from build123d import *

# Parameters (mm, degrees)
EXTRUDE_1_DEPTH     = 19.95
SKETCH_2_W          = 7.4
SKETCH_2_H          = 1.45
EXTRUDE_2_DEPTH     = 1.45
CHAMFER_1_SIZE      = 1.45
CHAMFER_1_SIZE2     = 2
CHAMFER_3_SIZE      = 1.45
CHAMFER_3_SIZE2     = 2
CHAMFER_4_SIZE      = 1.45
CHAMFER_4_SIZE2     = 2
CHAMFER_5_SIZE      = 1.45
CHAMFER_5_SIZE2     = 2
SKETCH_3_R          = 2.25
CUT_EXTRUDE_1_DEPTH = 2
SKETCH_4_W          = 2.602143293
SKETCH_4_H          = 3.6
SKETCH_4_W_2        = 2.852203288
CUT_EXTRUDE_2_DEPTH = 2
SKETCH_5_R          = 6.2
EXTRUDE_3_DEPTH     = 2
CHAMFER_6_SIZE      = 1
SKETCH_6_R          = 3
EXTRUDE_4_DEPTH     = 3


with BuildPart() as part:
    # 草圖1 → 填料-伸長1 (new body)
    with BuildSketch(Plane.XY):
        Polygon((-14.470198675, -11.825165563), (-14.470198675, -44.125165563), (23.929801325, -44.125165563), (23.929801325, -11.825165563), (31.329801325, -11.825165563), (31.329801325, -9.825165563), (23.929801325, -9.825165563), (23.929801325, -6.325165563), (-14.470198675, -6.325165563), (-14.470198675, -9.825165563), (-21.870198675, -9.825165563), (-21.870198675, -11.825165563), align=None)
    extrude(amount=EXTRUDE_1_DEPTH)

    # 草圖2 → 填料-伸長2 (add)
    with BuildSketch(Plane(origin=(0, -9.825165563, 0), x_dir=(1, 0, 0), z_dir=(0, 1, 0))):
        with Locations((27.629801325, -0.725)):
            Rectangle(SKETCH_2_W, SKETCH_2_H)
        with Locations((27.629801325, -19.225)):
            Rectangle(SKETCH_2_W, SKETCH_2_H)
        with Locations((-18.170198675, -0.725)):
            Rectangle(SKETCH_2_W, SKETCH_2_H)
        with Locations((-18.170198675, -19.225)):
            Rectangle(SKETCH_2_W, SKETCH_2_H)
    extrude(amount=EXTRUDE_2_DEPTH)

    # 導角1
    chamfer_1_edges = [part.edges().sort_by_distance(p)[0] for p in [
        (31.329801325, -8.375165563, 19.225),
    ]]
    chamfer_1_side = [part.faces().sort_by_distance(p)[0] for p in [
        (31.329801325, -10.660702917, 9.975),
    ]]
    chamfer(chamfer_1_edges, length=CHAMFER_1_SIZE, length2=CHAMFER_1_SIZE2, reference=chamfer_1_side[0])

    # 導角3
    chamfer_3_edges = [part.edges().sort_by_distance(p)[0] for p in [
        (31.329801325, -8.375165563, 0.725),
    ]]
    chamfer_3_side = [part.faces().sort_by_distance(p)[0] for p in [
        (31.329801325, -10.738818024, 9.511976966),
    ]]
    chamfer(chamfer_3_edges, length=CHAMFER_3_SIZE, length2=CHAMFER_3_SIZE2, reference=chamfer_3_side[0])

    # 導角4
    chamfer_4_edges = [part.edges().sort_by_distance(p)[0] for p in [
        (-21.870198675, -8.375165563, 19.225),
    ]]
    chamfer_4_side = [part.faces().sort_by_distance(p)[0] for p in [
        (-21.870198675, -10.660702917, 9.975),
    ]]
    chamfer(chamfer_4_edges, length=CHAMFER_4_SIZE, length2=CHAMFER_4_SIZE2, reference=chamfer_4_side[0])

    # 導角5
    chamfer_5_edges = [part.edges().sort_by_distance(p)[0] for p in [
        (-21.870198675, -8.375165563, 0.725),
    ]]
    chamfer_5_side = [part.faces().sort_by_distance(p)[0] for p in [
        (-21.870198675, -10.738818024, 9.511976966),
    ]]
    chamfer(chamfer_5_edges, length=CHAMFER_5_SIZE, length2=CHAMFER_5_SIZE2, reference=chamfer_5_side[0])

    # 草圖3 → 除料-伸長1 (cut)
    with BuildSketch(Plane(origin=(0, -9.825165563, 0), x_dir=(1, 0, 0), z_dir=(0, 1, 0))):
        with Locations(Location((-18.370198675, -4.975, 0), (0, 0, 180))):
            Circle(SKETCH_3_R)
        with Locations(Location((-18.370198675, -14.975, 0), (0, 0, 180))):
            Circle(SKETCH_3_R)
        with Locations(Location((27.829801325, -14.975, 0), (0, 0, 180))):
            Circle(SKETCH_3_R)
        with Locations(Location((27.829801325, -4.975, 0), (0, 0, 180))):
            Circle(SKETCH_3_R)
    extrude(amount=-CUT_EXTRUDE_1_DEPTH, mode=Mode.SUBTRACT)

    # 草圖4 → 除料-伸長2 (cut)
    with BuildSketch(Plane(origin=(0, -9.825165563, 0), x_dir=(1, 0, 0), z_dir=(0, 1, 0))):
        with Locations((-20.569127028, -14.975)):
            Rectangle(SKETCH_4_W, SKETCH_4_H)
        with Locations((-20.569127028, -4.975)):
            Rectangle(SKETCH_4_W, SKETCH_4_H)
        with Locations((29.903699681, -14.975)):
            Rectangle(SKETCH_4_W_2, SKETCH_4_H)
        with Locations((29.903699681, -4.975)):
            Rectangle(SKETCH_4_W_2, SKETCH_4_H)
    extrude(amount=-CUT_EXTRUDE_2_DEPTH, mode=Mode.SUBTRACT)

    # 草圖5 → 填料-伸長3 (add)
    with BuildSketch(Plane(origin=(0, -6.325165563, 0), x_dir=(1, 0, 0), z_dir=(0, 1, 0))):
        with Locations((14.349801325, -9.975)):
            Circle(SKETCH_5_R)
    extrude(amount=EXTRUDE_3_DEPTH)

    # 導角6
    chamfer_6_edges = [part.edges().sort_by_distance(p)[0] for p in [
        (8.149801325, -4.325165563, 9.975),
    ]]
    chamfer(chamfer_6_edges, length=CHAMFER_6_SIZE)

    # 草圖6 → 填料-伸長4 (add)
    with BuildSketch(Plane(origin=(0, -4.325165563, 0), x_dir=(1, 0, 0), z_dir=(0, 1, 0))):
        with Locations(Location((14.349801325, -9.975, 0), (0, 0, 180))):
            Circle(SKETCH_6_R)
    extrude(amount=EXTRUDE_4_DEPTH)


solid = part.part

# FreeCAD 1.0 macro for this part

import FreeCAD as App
import Part
import Sketcher
Q = App.Units.Quantity


def edges_at(feature, points):
    """Names of the edges that pass closest to the given points."""
    edges = feature.Shape.Edges
    near = lambda p: min(range(len(edges)), key=lambda i: edges[i].distToShape(Part.Vertex(*p))[0])
    return sorted({f"Edge{near(p) + 1}" for p in points})

doc = App.newDocument("Part")
body = doc.addObject("PartDesign::Body", "Body")

# Sketch on XY plane
sketch1 = body.newObject("Sketcher::SketchObject", "Sketch")
sketch1.AttachmentSupport = (doc.getObject("XY_Plane"), [""])
sketch1.MapMode = "FlatFace"
sketch1.addGeometry([
    Part.LineSegment(App.Vector(-14.470199, -11.825166, 0), App.Vector(-14.470199, -44.125166, 0)),  # 0
    Part.LineSegment(App.Vector(-14.470199, -44.125166, 0), App.Vector(23.929801, -44.125166, 0)),  # 1
    Part.LineSegment(App.Vector(23.929801, -44.125166, 0), App.Vector(23.929801, -11.825166, 0)),  # 2
    Part.LineSegment(App.Vector(23.929801, -11.825166, 0), App.Vector(31.329801, -11.825166, 0)),  # 3
    Part.LineSegment(App.Vector(31.329801, -11.825166, 0), App.Vector(31.329801, -9.825166, 0)),  # 4
    Part.LineSegment(App.Vector(31.329801, -9.825166, 0), App.Vector(23.929801, -9.825166, 0)),  # 5
    Part.LineSegment(App.Vector(23.929801, -9.825166, 0), App.Vector(23.929801, -6.325166, 0)),  # 6
    Part.LineSegment(App.Vector(23.929801, -6.325166, 0), App.Vector(-14.470199, -6.325166, 0)),  # 7
    Part.LineSegment(App.Vector(-14.470199, -6.325166, 0), App.Vector(-14.470199, -9.825166, 0)),  # 8
    Part.LineSegment(App.Vector(-14.470199, -9.825166, 0), App.Vector(-21.870199, -9.825166, 0)),  # 9
    Part.LineSegment(App.Vector(-21.870199, -9.825166, 0), App.Vector(-21.870199, -11.825166, 0)),  # 10
    Part.LineSegment(App.Vector(-21.870199, -11.825166, 0), App.Vector(-14.470199, -11.825166, 0)),  # 11
], False)
sketch1.addConstraint([
    Sketcher.Constraint("Coincident", 0, 2, 1, 1),
    Sketcher.Constraint("Coincident", 1, 2, 2, 1),
    Sketcher.Constraint("Coincident", 2, 2, 3, 1),
    Sketcher.Constraint("Coincident", 3, 2, 4, 1),
    Sketcher.Constraint("Coincident", 4, 2, 5, 1),
    Sketcher.Constraint("Coincident", 5, 2, 6, 1),
    Sketcher.Constraint("Coincident", 6, 2, 7, 1),
    Sketcher.Constraint("Coincident", 7, 2, 8, 1),
    Sketcher.Constraint("Coincident", 8, 2, 9, 1),
    Sketcher.Constraint("Coincident", 9, 2, 10, 1),
    Sketcher.Constraint("Coincident", 10, 2, 11, 1),
    Sketcher.Constraint("Coincident", 11, 2, 0, 1),
    Sketcher.Constraint("Vertical", 0),
    Sketcher.Constraint("Horizontal", 1),
    Sketcher.Constraint("Vertical", 2),
    Sketcher.Constraint("Horizontal", 3),
    Sketcher.Constraint("Vertical", 4),
    Sketcher.Constraint("Horizontal", 5),
    Sketcher.Constraint("Vertical", 6),
    Sketcher.Constraint("Horizontal", 7),
    Sketcher.Constraint("Vertical", 8),
    Sketcher.Constraint("Horizontal", 9),
    Sketcher.Constraint("Vertical", 10),
    Sketcher.Constraint("Horizontal", 11),
    Sketcher.Constraint("Horizontal", 5, 2, 8, 2),
    Sketcher.Constraint("Horizontal", 3, 2, 10, 2),
    Sketcher.Constraint("Vertical", 2, 2, 5, 2),
    Sketcher.Constraint("Vertical", 0, 2, 7, 2),
    Sketcher.Constraint("Equal", 5, 9),
    Sketcher.Constraint("DistanceY", 4, 1, 4, 2, Q("2 mm")),
    Sketcher.Constraint("DistanceX", 1, 1, 1, 2, Q("38.4 mm")),
    Sketcher.Constraint("DistanceX", 3, 1, 3, 2, Q("7.4 mm")),
    Sketcher.Constraint("DistanceY", 0, 2, 0, 1, Q("32.3 mm")),
    Sketcher.Constraint("DistanceY", 6, 1, 6, 2, Q("3.5 mm")),
    Sketcher.Constraint("DistanceX", 0, 2, -1, 1, Q("14.470199 mm")),
    Sketcher.Constraint("DistanceY", 0, 2, -1, 1, Q("44.125166 mm")),
])
pad1 = body.newObject("PartDesign::Pad", "Pad")
pad1.Profile = sketch1
pad1.Length = 19.95

# Sketch on XZ plane
sketch2 = body.newObject("Sketcher::SketchObject", "Sketch001")
sketch2.AttachmentSupport = (doc.getObject("XZ_Plane"), [""])
sketch2.MapMode = "FlatFace"
sketch2.AttachmentOffset = App.Placement(App.Vector(0, 0, 9.825166), App.Rotation())
sketch2.addGeometry([
    Part.LineSegment(App.Vector(23.929801, 0, 0), App.Vector(23.929801, 1.45, 0)),  # 0
    Part.LineSegment(App.Vector(23.929801, 1.45, 0), App.Vector(31.329801, 1.45, 0)),  # 1
    Part.LineSegment(App.Vector(31.329801, 1.45, 0), App.Vector(31.329801, 0, 0)),  # 2
    Part.LineSegment(App.Vector(31.329801, 0, 0), App.Vector(23.929801, 0, 0)),  # 3
    Part.LineSegment(App.Vector(23.929801, 18.5, 0), App.Vector(23.929801, 19.95, 0)),  # 4
    Part.LineSegment(App.Vector(23.929801, 19.95, 0), App.Vector(31.329801, 19.95, 0)),  # 5
    Part.LineSegment(App.Vector(31.329801, 19.95, 0), App.Vector(31.329801, 18.5, 0)),  # 6
    Part.LineSegment(App.Vector(31.329801, 18.5, 0), App.Vector(23.929801, 18.5, 0)),  # 7
    Part.LineSegment(App.Vector(-21.870199, 0, 0), App.Vector(-21.870199, 1.45, 0)),  # 8
    Part.LineSegment(App.Vector(-21.870199, 1.45, 0), App.Vector(-14.470199, 1.45, 0)),  # 9
    Part.LineSegment(App.Vector(-14.470199, 1.45, 0), App.Vector(-14.470199, 0, 0)),  # 10
    Part.LineSegment(App.Vector(-14.470199, 0, 0), App.Vector(-21.870199, 0, 0)),  # 11
    Part.LineSegment(App.Vector(-21.870199, 18.5, 0), App.Vector(-21.870199, 19.95, 0)),  # 12
    Part.LineSegment(App.Vector(-21.870199, 19.95, 0), App.Vector(-14.470199, 19.95, 0)),  # 13
    Part.LineSegment(App.Vector(-14.470199, 19.95, 0), App.Vector(-14.470199, 18.5, 0)),  # 14
    Part.LineSegment(App.Vector(-14.470199, 18.5, 0), App.Vector(-21.870199, 18.5, 0)),  # 15
], False)
sketch2.addConstraint([
    Sketcher.Constraint("Coincident", 0, 2, 1, 1),
    Sketcher.Constraint("Coincident", 1, 2, 2, 1),
    Sketcher.Constraint("Coincident", 2, 2, 3, 1),
    Sketcher.Constraint("Coincident", 3, 2, 0, 1),
    Sketcher.Constraint("Coincident", 4, 2, 5, 1),
    Sketcher.Constraint("Coincident", 5, 2, 6, 1),
    Sketcher.Constraint("Coincident", 6, 2, 7, 1),
    Sketcher.Constraint("Coincident", 7, 2, 4, 1),
    Sketcher.Constraint("Coincident", 8, 2, 9, 1),
    Sketcher.Constraint("Coincident", 9, 2, 10, 1),
    Sketcher.Constraint("Coincident", 10, 2, 11, 1),
    Sketcher.Constraint("Coincident", 11, 2, 8, 1),
    Sketcher.Constraint("Coincident", 12, 2, 13, 1),
    Sketcher.Constraint("Coincident", 13, 2, 14, 1),
    Sketcher.Constraint("Coincident", 14, 2, 15, 1),
    Sketcher.Constraint("Coincident", 15, 2, 12, 1),
    Sketcher.Constraint("Vertical", 0),
    Sketcher.Constraint("Horizontal", 1),
    Sketcher.Constraint("Vertical", 2),
    Sketcher.Constraint("Horizontal", 3),
    Sketcher.Constraint("Vertical", 4),
    Sketcher.Constraint("Horizontal", 5),
    Sketcher.Constraint("Vertical", 6),
    Sketcher.Constraint("Horizontal", 7),
    Sketcher.Constraint("Vertical", 8),
    Sketcher.Constraint("Horizontal", 9),
    Sketcher.Constraint("Vertical", 10),
    Sketcher.Constraint("Horizontal", 11),
    Sketcher.Constraint("Vertical", 12),
    Sketcher.Constraint("Horizontal", 13),
    Sketcher.Constraint("Vertical", 14),
    Sketcher.Constraint("Horizontal", 15),
    Sketcher.Constraint("PointOnObject", 2, 2, -1),
    Sketcher.Constraint("PointOnObject", 10, 2, -1),
    Sketcher.Constraint("Horizontal", 1, 2, 8, 2),
    Sketcher.Constraint("Horizontal", 5, 2, 12, 2),
    Sketcher.Constraint("Horizontal", 7, 2, 14, 2),
    Sketcher.Constraint("Vertical", 3, 2, 4, 2),
    Sketcher.Constraint("Vertical", 2, 2, 5, 2),
    Sketcher.Constraint("Vertical", 11, 2, 12, 2),
    Sketcher.Constraint("Vertical", 10, 2, 13, 2),
    Sketcher.Constraint("Equal", 7, 9),
    Sketcher.Constraint("Equal", 2, 4),
    Sketcher.Constraint("DistanceX", 1, 1, 1, 2, Q("7.4 mm")),
    Sketcher.Constraint("DistanceY", 0, 1, 0, 2, Q("1.45 mm")),
    Sketcher.Constraint("DistanceY", -1, 1, 6, 2, Q("18.5 mm")),
    Sketcher.Constraint("DistanceX", 8, 2, 0, 2, Q("45.8 mm")),
    Sketcher.Constraint("DistanceX", -1, 1, 0, 2, Q("23.929801 mm")),
])
pad2 = body.newObject("PartDesign::Pad", "Pad001")
pad2.Profile = sketch2
pad2.Length = 1.45
pad2.Reversed = True
doc.recompute()

chamfer = body.newObject("PartDesign::Chamfer", "Chamfer")
chamfer.Base = (pad2, edges_at(pad2, [(31.33, -8.375, 19.225)]))
chamfer.ChamferType = "Two distances"
chamfer.Size = 1.45
chamfer.Size2 = 2
chamfer.FlipDirection = True
doc.recompute()

chamfer2 = body.newObject("PartDesign::Chamfer", "Chamfer001")
chamfer2.Base = (chamfer, edges_at(chamfer, [(31.33, -8.375, 0.725)]))
chamfer2.ChamferType = "Two distances"
chamfer2.Size = 1.45
chamfer2.Size2 = 2
doc.recompute()

chamfer3 = body.newObject("PartDesign::Chamfer", "Chamfer002")
chamfer3.Base = (chamfer2, edges_at(chamfer2, [(-21.87, -8.375, 19.225)]))
chamfer3.ChamferType = "Two distances"
chamfer3.Size = 1.45
chamfer3.Size2 = 2
doc.recompute()

chamfer4 = body.newObject("PartDesign::Chamfer", "Chamfer003")
chamfer4.Base = (chamfer3, edges_at(chamfer3, [(-21.87, -8.375, 0.725)]))
chamfer4.ChamferType = "Two distances"
chamfer4.Size = 1.45
chamfer4.Size2 = 2

# Sketch on XZ plane
sketch3 = body.newObject("Sketcher::SketchObject", "Sketch002")
sketch3.AttachmentSupport = (doc.getObject("XZ_Plane"), [""])
sketch3.MapMode = "FlatFace"
sketch3.AttachmentOffset = App.Placement(App.Vector(0, 0, 9.825166), App.Rotation())
sketch3.addGeometry([
    Part.Circle(App.Vector(-18.370199, 4.975, 0), App.Vector(0, 0, 1), 2.25),
    Part.Circle(App.Vector(-18.370199, 14.975, 0), App.Vector(0, 0, 1), 2.25),
    Part.Circle(App.Vector(27.829801, 14.975, 0), App.Vector(0, 0, 1), 2.25),
    Part.Circle(App.Vector(27.829801, 4.975, 0), App.Vector(0, 0, 1), 2.25),
], False)
sketch3.addConstraint([
    Sketcher.Constraint("Equal", 0, 1),
    Sketcher.Constraint("Equal", 1, 2),
    Sketcher.Constraint("Equal", 2, 3),
    Sketcher.Constraint("Horizontal", 1, 3, 2, 3),
    Sketcher.Constraint("Horizontal", 0, 3, 3, 3),
    Sketcher.Constraint("Vertical", 0, 3, 1, 3),
    Sketcher.Constraint("Vertical", 2, 3, 3, 3),
    Sketcher.Constraint("Diameter", 0, Q("4.5 mm")),
    Sketcher.Constraint("DistanceY", 0, 3, 1, 3, Q("10 mm")),
    Sketcher.Constraint("DistanceX", 1, 3, 2, 3, Q("46.2 mm")),
    Sketcher.Constraint("DistanceY", -1, 1, 0, 3, Q("4.975 mm")),
    Sketcher.Constraint("DistanceX", 0, 3, -1, 1, Q("18.370199 mm")),
])
pocket1 = body.newObject("PartDesign::Pocket", "Pocket")
pocket1.Profile = sketch3
pocket1.Length = 2
pocket1.Reversed = True

# Sketch on XZ plane
sketch4 = body.newObject("Sketcher::SketchObject", "Sketch003")
sketch4.AttachmentSupport = (doc.getObject("XZ_Plane"), [""])
sketch4.MapMode = "FlatFace"
sketch4.AttachmentOffset = App.Placement(App.Vector(0, 0, 9.825166), App.Rotation())
sketch4.addGeometry([
    Part.LineSegment(App.Vector(-21.870199, 13.175, 0), App.Vector(-21.870199, 16.775, 0)),  # 0
    Part.LineSegment(App.Vector(-21.870199, 16.775, 0), App.Vector(-19.268055, 16.775, 0)),  # 1
    Part.LineSegment(App.Vector(-19.268055, 16.775, 0), App.Vector(-19.268055, 13.175, 0)),  # 2
    Part.LineSegment(App.Vector(-19.268055, 13.175, 0), App.Vector(-21.870199, 13.175, 0)),  # 3
    Part.LineSegment(App.Vector(-21.870199, 3.175, 0), App.Vector(-21.870199, 6.775, 0)),  # 4
    Part.LineSegment(App.Vector(-21.870199, 6.775, 0), App.Vector(-19.268055, 6.775, 0)),  # 5
    Part.LineSegment(App.Vector(-19.268055, 6.775, 0), App.Vector(-19.268055, 3.175, 0)),  # 6
    Part.LineSegment(App.Vector(-19.268055, 3.175, 0), App.Vector(-21.870199, 3.175, 0)),  # 7
    Part.LineSegment(App.Vector(28.477598, 13.175, 0), App.Vector(28.477598, 16.775, 0)),  # 8
    Part.LineSegment(App.Vector(28.477598, 16.775, 0), App.Vector(31.329801, 16.775, 0)),  # 9
    Part.LineSegment(App.Vector(31.329801, 16.775, 0), App.Vector(31.329801, 13.175, 0)),  # 10
    Part.LineSegment(App.Vector(31.329801, 13.175, 0), App.Vector(28.477598, 13.175, 0)),  # 11
    Part.LineSegment(App.Vector(28.477598, 3.175, 0), App.Vector(28.477598, 6.775, 0)),  # 12
    Part.LineSegment(App.Vector(28.477598, 6.775, 0), App.Vector(31.329801, 6.775, 0)),  # 13
    Part.LineSegment(App.Vector(31.329801, 6.775, 0), App.Vector(31.329801, 3.175, 0)),  # 14
    Part.LineSegment(App.Vector(31.329801, 3.175, 0), App.Vector(28.477598, 3.175, 0)),  # 15
], False)
sketch4.addConstraint([
    Sketcher.Constraint("Coincident", 0, 2, 1, 1),
    Sketcher.Constraint("Coincident", 1, 2, 2, 1),
    Sketcher.Constraint("Coincident", 2, 2, 3, 1),
    Sketcher.Constraint("Coincident", 3, 2, 0, 1),
    Sketcher.Constraint("Coincident", 4, 2, 5, 1),
    Sketcher.Constraint("Coincident", 5, 2, 6, 1),
    Sketcher.Constraint("Coincident", 6, 2, 7, 1),
    Sketcher.Constraint("Coincident", 7, 2, 4, 1),
    Sketcher.Constraint("Coincident", 8, 2, 9, 1),
    Sketcher.Constraint("Coincident", 9, 2, 10, 1),
    Sketcher.Constraint("Coincident", 10, 2, 11, 1),
    Sketcher.Constraint("Coincident", 11, 2, 8, 1),
    Sketcher.Constraint("Coincident", 12, 2, 13, 1),
    Sketcher.Constraint("Coincident", 13, 2, 14, 1),
    Sketcher.Constraint("Coincident", 14, 2, 15, 1),
    Sketcher.Constraint("Coincident", 15, 2, 12, 1),
    Sketcher.Constraint("Vertical", 0),
    Sketcher.Constraint("Horizontal", 1),
    Sketcher.Constraint("Vertical", 2),
    Sketcher.Constraint("Horizontal", 3),
    Sketcher.Constraint("Vertical", 4),
    Sketcher.Constraint("Horizontal", 5),
    Sketcher.Constraint("Vertical", 6),
    Sketcher.Constraint("Horizontal", 7),
    Sketcher.Constraint("Vertical", 8),
    Sketcher.Constraint("Horizontal", 9),
    Sketcher.Constraint("Vertical", 10),
    Sketcher.Constraint("Horizontal", 11),
    Sketcher.Constraint("Vertical", 12),
    Sketcher.Constraint("Horizontal", 13),
    Sketcher.Constraint("Vertical", 14),
    Sketcher.Constraint("Horizontal", 15),
    Sketcher.Constraint("Horizontal", 1, 2, 8, 2),
    Sketcher.Constraint("Horizontal", 3, 2, 10, 2),
    Sketcher.Constraint("Horizontal", 5, 2, 12, 2),
    Sketcher.Constraint("Horizontal", 7, 2, 14, 2),
    Sketcher.Constraint("Vertical", 3, 2, 4, 2),
    Sketcher.Constraint("Vertical", 2, 2, 5, 2),
    Sketcher.Constraint("Vertical", 11, 2, 12, 2),
    Sketcher.Constraint("Vertical", 10, 2, 13, 2),
    Sketcher.Constraint("Equal", 2, 4),
    Sketcher.Constraint("DistanceY", 0, 1, 0, 2, Q("3.6 mm")),
    Sketcher.Constraint("DistanceY", 4, 2, 0, 2, Q("10 mm")),
    Sketcher.Constraint("DistanceY", -1, 1, 0, 2, Q("16.775 mm")),
    Sketcher.Constraint("DistanceX", 0, 2, -1, 1, Q("21.870199 mm")),
    Sketcher.Constraint("DistanceX", -1, 1, 8, 2, Q("28.477598 mm")),
    Sketcher.Constraint("DistanceX", -1, 1, 9, 2, Q("31.329801 mm")),
    Sketcher.Constraint("DistanceX", 1, 1, 1, 2, Q("2.602143 mm")),
])
pocket2 = body.newObject("PartDesign::Pocket", "Pocket001")
pocket2.Profile = sketch4
pocket2.Length = 2
pocket2.Reversed = True

# Sketch on XZ plane
sketch5 = body.newObject("Sketcher::SketchObject", "Sketch004")
sketch5.AttachmentSupport = (doc.getObject("XZ_Plane"), [""])
sketch5.MapMode = "FlatFace"
sketch5.AttachmentOffset = App.Placement(App.Vector(0, 0, 6.325166), App.Rotation())
sketch5.addGeometry(Part.Circle(App.Vector(14.349801, 9.975, 0), App.Vector(0, 0, 1), 6.2), False)
sketch5.addConstraint([
    Sketcher.Constraint("Diameter", 0, Q("12.4 mm")),
    Sketcher.Constraint("DistanceY", -1, 1, 0, 3, Q("9.975 mm")),
    Sketcher.Constraint("DistanceX", -1, 1, 0, 3, Q("14.349801 mm")),
])
pad3 = body.newObject("PartDesign::Pad", "Pad002")
pad3.Profile = sketch5
pad3.Length = 2
pad3.Reversed = True
doc.recompute()

chamfer5 = body.newObject("PartDesign::Chamfer", "Chamfer004")
chamfer5.Base = (pad3, edges_at(pad3, [(8.15, -4.325, 9.975)]))
chamfer5.Size = 1

# Sketch on XZ plane
sketch6 = body.newObject("Sketcher::SketchObject", "Sketch005")
sketch6.AttachmentSupport = (doc.getObject("XZ_Plane"), [""])
sketch6.MapMode = "FlatFace"
sketch6.AttachmentOffset = App.Placement(App.Vector(0, 0, 4.325166), App.Rotation())
sketch6.addGeometry(Part.Circle(App.Vector(14.349801, 9.975, 0), App.Vector(0, 0, 1), 3), False)
sketch6.addConstraint([
    Sketcher.Constraint("Diameter", 0, Q("6 mm")),
    Sketcher.Constraint("DistanceY", -1, 1, 0, 3, Q("9.975 mm")),
    Sketcher.Constraint("DistanceX", -1, 1, 0, 3, Q("14.349801 mm")),
])
pad4 = body.newObject("PartDesign::Pad", "Pad003")
pad4.Profile = sketch6
pad4.Length = 3
pad4.Reversed = True

doc.recompute()
